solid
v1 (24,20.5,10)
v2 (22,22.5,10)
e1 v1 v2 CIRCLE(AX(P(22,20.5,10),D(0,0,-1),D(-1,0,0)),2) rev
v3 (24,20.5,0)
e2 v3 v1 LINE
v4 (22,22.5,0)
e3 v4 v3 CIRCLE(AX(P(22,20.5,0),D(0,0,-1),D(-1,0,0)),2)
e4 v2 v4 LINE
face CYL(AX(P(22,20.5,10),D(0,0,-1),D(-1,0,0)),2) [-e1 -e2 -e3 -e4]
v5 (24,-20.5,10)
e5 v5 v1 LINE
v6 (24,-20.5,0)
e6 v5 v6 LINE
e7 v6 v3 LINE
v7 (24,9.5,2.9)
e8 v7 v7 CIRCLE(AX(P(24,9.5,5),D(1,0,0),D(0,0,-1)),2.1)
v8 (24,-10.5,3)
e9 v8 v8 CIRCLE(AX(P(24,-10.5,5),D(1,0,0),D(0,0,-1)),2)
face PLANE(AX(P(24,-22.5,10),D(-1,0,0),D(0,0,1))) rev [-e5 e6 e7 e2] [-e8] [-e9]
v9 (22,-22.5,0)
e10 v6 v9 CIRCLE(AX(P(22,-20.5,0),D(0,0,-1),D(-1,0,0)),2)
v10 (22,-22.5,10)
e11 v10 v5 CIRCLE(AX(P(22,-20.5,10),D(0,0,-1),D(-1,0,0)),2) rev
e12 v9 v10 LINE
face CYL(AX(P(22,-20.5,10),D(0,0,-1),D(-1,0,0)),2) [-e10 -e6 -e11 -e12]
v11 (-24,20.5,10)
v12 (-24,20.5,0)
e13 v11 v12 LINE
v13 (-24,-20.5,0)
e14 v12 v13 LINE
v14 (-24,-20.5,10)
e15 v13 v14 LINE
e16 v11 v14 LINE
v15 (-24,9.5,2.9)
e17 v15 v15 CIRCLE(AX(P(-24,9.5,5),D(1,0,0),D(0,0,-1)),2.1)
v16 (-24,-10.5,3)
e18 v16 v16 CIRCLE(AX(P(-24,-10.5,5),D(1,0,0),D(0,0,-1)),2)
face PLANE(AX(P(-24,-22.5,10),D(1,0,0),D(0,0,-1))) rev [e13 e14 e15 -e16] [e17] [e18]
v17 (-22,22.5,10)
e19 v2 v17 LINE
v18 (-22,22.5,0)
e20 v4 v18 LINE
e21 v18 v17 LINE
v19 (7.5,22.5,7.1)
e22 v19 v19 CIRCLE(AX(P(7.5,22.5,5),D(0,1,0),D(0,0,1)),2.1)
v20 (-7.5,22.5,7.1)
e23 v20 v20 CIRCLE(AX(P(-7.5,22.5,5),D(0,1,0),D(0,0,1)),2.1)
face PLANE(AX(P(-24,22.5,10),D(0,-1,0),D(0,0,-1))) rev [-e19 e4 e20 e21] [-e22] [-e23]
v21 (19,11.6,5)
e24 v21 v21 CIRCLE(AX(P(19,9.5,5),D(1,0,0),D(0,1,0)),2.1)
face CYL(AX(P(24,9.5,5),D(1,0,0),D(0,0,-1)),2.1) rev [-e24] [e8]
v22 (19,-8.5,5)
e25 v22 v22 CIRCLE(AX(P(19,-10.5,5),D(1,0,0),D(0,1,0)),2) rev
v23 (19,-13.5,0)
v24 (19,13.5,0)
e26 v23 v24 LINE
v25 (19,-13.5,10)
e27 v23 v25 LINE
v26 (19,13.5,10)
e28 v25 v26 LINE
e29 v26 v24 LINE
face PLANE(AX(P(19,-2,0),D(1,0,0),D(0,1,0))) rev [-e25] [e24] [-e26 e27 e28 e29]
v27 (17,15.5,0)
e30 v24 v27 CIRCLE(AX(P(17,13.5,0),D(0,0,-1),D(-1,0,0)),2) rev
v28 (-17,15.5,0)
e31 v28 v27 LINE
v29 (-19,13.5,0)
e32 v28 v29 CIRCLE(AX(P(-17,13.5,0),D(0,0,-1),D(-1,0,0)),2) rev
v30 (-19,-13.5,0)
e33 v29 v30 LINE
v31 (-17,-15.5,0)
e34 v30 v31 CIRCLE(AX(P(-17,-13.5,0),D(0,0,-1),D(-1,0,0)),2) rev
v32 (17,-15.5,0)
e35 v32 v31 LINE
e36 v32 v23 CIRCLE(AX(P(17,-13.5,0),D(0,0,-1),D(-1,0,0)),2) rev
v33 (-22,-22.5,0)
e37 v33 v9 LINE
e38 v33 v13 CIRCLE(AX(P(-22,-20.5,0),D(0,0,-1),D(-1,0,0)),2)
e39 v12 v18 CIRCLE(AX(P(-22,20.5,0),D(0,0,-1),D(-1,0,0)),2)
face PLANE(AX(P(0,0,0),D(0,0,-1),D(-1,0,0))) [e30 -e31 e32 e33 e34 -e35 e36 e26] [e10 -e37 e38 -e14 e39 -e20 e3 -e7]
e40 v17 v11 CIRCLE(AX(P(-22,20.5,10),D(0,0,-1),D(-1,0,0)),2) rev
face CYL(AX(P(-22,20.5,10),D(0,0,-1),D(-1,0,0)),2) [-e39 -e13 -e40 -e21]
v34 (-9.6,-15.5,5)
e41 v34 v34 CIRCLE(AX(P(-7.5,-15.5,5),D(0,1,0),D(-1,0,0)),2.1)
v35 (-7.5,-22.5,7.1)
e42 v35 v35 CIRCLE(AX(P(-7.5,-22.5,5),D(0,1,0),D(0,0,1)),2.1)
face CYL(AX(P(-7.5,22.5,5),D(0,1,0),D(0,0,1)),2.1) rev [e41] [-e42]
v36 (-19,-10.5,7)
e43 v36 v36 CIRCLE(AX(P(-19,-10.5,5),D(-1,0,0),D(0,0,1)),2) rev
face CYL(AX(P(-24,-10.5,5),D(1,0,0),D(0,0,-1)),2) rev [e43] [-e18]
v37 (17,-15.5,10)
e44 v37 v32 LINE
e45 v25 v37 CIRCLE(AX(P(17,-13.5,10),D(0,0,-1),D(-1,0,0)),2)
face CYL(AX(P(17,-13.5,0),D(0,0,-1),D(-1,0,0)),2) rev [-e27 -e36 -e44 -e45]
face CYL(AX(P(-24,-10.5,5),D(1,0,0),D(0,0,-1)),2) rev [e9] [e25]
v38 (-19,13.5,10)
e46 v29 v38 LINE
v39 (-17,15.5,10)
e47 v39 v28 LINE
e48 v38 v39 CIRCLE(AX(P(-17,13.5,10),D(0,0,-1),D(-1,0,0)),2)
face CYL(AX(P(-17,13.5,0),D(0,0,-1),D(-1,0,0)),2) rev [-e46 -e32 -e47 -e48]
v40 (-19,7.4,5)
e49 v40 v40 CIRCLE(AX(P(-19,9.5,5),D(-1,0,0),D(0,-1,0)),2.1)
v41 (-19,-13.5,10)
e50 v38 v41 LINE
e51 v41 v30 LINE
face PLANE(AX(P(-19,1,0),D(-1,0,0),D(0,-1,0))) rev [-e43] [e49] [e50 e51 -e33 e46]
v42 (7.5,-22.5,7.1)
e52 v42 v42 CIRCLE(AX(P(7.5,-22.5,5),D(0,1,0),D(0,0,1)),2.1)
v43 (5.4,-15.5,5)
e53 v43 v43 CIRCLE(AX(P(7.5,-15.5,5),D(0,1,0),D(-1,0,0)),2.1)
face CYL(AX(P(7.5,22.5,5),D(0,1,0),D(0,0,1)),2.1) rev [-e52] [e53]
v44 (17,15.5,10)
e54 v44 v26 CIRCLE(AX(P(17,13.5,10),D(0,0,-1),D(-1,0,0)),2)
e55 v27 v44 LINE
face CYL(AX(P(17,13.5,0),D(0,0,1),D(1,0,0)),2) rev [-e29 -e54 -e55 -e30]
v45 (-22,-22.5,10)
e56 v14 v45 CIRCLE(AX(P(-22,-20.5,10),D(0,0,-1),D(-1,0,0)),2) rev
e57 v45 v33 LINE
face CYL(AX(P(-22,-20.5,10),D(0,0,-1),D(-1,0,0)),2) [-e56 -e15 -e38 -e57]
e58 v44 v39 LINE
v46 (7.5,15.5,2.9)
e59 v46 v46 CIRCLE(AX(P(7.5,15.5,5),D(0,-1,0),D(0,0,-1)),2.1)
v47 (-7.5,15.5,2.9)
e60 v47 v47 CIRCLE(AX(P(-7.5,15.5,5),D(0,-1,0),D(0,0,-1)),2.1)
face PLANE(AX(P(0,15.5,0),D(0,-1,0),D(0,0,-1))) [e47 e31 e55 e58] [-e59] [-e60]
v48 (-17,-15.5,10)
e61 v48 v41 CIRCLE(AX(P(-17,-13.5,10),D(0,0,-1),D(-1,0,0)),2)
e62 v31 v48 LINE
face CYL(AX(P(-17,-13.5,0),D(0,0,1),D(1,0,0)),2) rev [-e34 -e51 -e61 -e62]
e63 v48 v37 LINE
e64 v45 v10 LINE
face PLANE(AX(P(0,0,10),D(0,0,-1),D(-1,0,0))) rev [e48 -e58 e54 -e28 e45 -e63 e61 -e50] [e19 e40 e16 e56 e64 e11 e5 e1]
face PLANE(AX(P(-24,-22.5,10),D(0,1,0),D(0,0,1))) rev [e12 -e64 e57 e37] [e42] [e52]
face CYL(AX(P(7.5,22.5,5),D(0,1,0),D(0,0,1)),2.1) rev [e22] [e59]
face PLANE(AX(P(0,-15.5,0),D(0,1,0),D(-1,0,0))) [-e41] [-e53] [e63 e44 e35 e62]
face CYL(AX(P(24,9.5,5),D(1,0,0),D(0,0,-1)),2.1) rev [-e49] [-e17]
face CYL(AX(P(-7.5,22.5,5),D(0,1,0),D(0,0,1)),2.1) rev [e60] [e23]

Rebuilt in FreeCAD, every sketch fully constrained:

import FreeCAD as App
import Part
import Sketcher
Q = App.Units.Quantity


def edges_at(feature, points):
    """Names of the edges that pass closest to the given points."""
    edges = feature.Shape.Edges
    near = lambda p: min(range(len(edges)), key=lambda i: edges[i].distToShape(Part.Vertex(*p))[0])
    return sorted({f"Edge{near(p) + 1}" for p in points})

doc = App.newDocument("Part")
body = doc.addObject("PartDesign::Body", "Body")

# Sketch on XY plane
sketch1 = body.newObject("Sketcher::SketchObject", "Sketch")
sketch1.AttachmentSupport = (doc.getObject("XY_Plane"), [""])
sketch1.MapMode = "FlatFace"
sketch1.addGeometry(Part.LineSegment(App.Vector(-24, 22, 0), App.Vector(-24, -22, 0)), False)
sketch1.addGeometry(Part.LineSegment(App.Vector(-24, -22, 0), App.Vector(24, -22, 0)), False)
sketch1.addGeometry(Part.LineSegment(App.Vector(24, -22, 0), App.Vector(24, 22, 0)), False)
sketch1.addGeometry(Part.LineSegment(App.Vector(24, 22, 0), App.Vector(-24, 22, 0)), False)
sketch1.addConstraint(Sketcher.Constraint("Coincident", 0, 2, 1, 1))
sketch1.addConstraint(Sketcher.Constraint("Coincident", 1, 2, 2, 1))
sketch1.addConstraint(Sketcher.Constraint("Coincident", 2, 2, 3, 1))
sketch1.addConstraint(Sketcher.Constraint("Coincident", 3, 2, 0, 1))
sketch1.addConstraint(Sketcher.Constraint("Vertical", 0))
sketch1.addConstraint(Sketcher.Constraint("Horizontal", 1))
sketch1.addConstraint(Sketcher.Constraint("Vertical", 2))
sketch1.addConstraint(Sketcher.Constraint("Horizontal", 3))
sketch1.addConstraint(Sketcher.Constraint("Symmetric", 0, 2, 2, 2, -1, 1))
sketch1.addConstraint(Sketcher.Constraint("DistanceX", 1, 1, 1, 2, Q("48 mm")))
sketch1.addConstraint(Sketcher.Constraint("DistanceY", 0, 2, 0, 1, Q("45 mm")))
pad1 = body.newObject("PartDesign::Pad", "Pad")
pad1.Profile = sketch1
pad1.Length = 10

# Sketch on XZ plane
sketch2 = body.newObject("Sketcher::SketchObject", "Sketch001")
sketch2.AttachmentSupport = (doc.getObject("XZ_Plane"), [""])
sketch2.MapMode = "FlatFace"
sketch2.AttachmentOffset = App.Placement(App.Vector(0, 0, -22.5), App.Rotation())
sketch2.addGeometry(Part.Circle(App.Vector(10, 5, 0), App.Vector(0, 0, 1), 2.5), False)
sketch2.addGeometry(Part.Circle(App.Vector(-10, 5, 0), App.Vector(0, 0, 1), 2.5), False)
sketch2.addConstraint(Sketcher.Constraint("Equal", 0, 1))
sketch2.addConstraint(Sketcher.Constraint("Symmetric", 0, 3, 1, 3, -2))
sketch2.addConstraint(Sketcher.Constraint("Diameter", 0, Q("5 mm")))
sketch2.addConstraint(Sketcher.Constraint("DistanceX", -1, 1, 0, 3, Q("10 mm")))
sketch2.addConstraint(Sketcher.Constraint("DistanceY", -1, 1, 0, 3, Q("5 mm")))
pocket1 = body.newObject("PartDesign::Pocket", "Pocket")
pocket1.Profile = sketch2
pocket1.Type = "ThroughAll"
pocket1.Midplane = True

# Sketch on YZ plane
sketch3 = body.newObject("Sketcher::SketchObject", "Sketch002")
sketch3.AttachmentSupport = (doc.getObject("YZ_Plane"), [""])
sketch3.MapMode = "FlatFace"
sketch3.AttachmentOffset = App.Placement(App.Vector(0, 0, 24), App.Rotation())
sketch3.addGeometry(Part.Circle(App.Vector(-10.5, 5, 0), App.Vector(0, 0, 1), 2), False)
sketch3.addConstraint(Sketcher.Constraint("Diameter", 0, Q("4 mm")))
sketch3.addConstraint(Sketcher.Constraint("DistanceY", -1, 1, 0, 3, Q("5 mm")))
sketch3.addConstraint(Sketcher.Constraint("DistanceX", 0, 3, -1, 1, Q("10.5 mm")))
pocket2 = body.newObject("PartDesign::Pocket", "Pocket001")
pocket2.Profile = sketch3
pocket2.Type = "ThroughAll"

# Sketch on YZ plane
sketch4 = body.newObject("Sketcher::SketchObject", "Sketch003")
sketch4.AttachmentSupport = (doc.getObject("YZ_Plane"), [""])
sketch4.MapMode = "FlatFace"
sketch4.AttachmentOffset = App.Placement(App.Vector(0, 0, 24), App.Rotation())
sketch4.addGeometry(Part.Circle(App.Vector(9.5, 5, 0), App.Vector(0, 0, 1), 1.8), False)
sketch4.addConstraint(Sketcher.Constraint("Diameter", 0, Q("3.5 mm")))
sketch4.addConstraint(Sketcher.Constraint("DistanceY", -1, 1, 0, 3, Q("5 mm")))
sketch4.addConstraint(Sketcher.Constraint("DistanceX", -1, 1, 0, 3, Q("9.5 mm")))
pocket3 = body.newObject("PartDesign::Pocket", "Pocket002")
pocket3.Profile = sketch4
pocket3.Type = "ThroughAll"
pocket3.Midplane = True

# Sketch on XY plane
sketch5 = body.newObject("Sketcher::SketchObject", "Sketch004")
sketch5.AttachmentSupport = (doc.getObject("XY_Plane"), [""])
sketch5.MapMode = "FlatFace"
sketch5.AttachmentOffset = App.Placement(App.Vector(0, 0, 10), App.Rotation())
sketch5.addGeometry(Part.LineSegment(App.Vector(-19, -2, 0), App.Vector(-19, -19, 0)), False)
sketch5.addGeometry(Part.LineSegment(App.Vector(-19, -19, 0), App.Vector(-1, -19, 0)), False)
sketch5.addGeometry(Part.LineSegment(App.Vector(-1, -19, 0), App.Vector(-1, -2, 0)), False)
sketch5.addGeometry(Part.LineSegment(App.Vector(-1, -2, 0), App.Vector(-19, -2, 0)), False)
sketch5.addGeometry(Part.LineSegment(App.Vector(1, -2, 0), App.Vector(1, -19, 0)), False)
sketch5.addGeometry(Part.LineSegment(App.Vector(1, -19, 0), App.Vector(19, -19, 0)), False)
sketch5.addGeometry(Part.LineSegment(App.Vector(19, -19, 0), App.Vector(19, -2, 0)), False)
sketch5.addGeometry(Part.LineSegment(App.Vector(19, -2, 0), App.Vector(1, -2, 0)), False)
sketch5.addGeometry(Part.LineSegment(App.Vector(-19, 18, 0), App.Vector(-19, 1, 0)), False)
sketch5.addGeometry(Part.LineSegment(App.Vector(-19, 1, 0), App.Vector(-1, 1, 0)), False)
sketch5.addGeometry(Part.LineSegment(App.Vector(-1, 1, 0), App.Vector(-1, 18, 0)), False)
sketch5.addGeometry(Part.LineSegment(App.Vector(-1, 18, 0), App.Vector(-19, 18, 0)), False)
sketch5.addGeometry(Part.LineSegment(App.Vector(1, 18, 0), App.Vector(1, 1, 0)), False)
sketch5.addGeometry(Part.LineSegment(App.Vector(1, 1, 0), App.Vector(19, 1, 0)), False)
sketch5.addGeometry(Part.LineSegment(App.Vector(19, 1, 0), App.Vector(19, 18, 0)), False)
sketch5.addGeometry(Part.LineSegment(App.Vector(19, 18, 0), App.Vector(1, 18, 0)), False)
sketch5.addConstraint(Sketcher.Constraint("Coincident", 0, 2, 1, 1))
sketch5.addConstraint(Sketcher.Constraint("Coincident", 1, 2, 2, 1))
sketch5.addConstraint(Sketcher.Constraint("Coincident", 2, 2, 3, 1))
sketch5.addConstraint(Sketcher.Constraint("Coincident", 3, 2, 0, 1))
sketch5.addConstraint(Sketcher.Constraint("Coincident", 4, 2, 5, 1))
sketch5.addConstraint(Sketcher.Constraint("Coincident", 5, 2, 6, 1))
sketch5.addConstraint(Sketcher.Constraint("Coincident", 6, 2, 7, 1))
sketch5.addConstraint(Sketcher.Constraint("Coincident", 7, 2, 4, 1))
sketch5.addConstraint(Sketcher.Constraint("Coincident", 8, 2, 9, 1))
sketch5.addConstraint(Sketcher.Constraint("Coincident", 9, 2, 10, 1))
sketch5.addConstraint(Sketcher.Constraint("Coincident", 10, 2, 11, 1))
sketch5.addConstraint(Sketcher.Constraint("Coincident", 11, 2, 8, 1))
sketch5.addConstraint(Sketcher.Constraint("Coincident", 12, 2, 13, 1))
sketch5.addConstraint(Sketcher.Constraint("Coincident", 13, 2, 14, 1))
sketch5.addConstraint(Sketcher.Constraint("Coincident", 14, 2, 15, 1))
sketch5.addConstraint(Sketcher.Constraint("Coincident", 15, 2, 12, 1))
sketch5.addConstraint(Sketcher.Constraint("Vertical", 0))
sketch5.addConstraint(Sketcher.Constraint("Horizontal", 1))
sketch5.addConstraint(Sketcher.Constraint("Vertical", 2))
sketch5.addConstraint(Sketcher.Constraint("Horizontal", 3))
sketch5.addConstraint(Sketcher.Constraint("Vertical", 4))
sketch5.addConstraint(Sketcher.Constraint("Horizontal", 5))
sketch5.addConstraint(Sketcher.Constraint("Vertical", 6))
sketch5.addConstraint(Sketcher.Constraint("Horizontal", 7))
sketch5.addConstraint(Sketcher.Constraint("Vertical", 8))
sketch5.addConstraint(Sketcher.Constraint("Horizontal", 9))
sketch5.addConstraint(Sketcher.Constraint("Vertical", 10))
sketch5.addConstraint(Sketcher.Constraint("Horizontal", 11))
sketch5.addConstraint(Sketcher.Constraint("Vertical", 12))
sketch5.addConstraint(Sketcher.Constraint("Horizontal", 13))
sketch5.addConstraint(Sketcher.Constraint("Vertical", 14))
sketch5.addConstraint(Sketcher.Constraint("Horizontal", 15))
sketch5.addConstraint(Sketcher.Constraint("Symmetric", 1, 2, 4, 2, -2))
sketch5.addConstraint(Sketcher.Constraint("Symmetric", 3, 2, 6, 2, -2))
sketch5.addConstraint(Sketcher.Constraint("Symmetric", 9, 2, 12, 2, -2))
sketch5.addConstraint(Sketcher.Constraint("Symmetric", 11, 2, 14, 2, -2))
sketch5.addConstraint(Sketcher.Constraint("Vertical", 3, 2, 8, 2))
sketch5.addConstraint(Sketcher.Constraint("Vertical", 2, 2, 9, 2))
sketch5.addConstraint(Sketcher.Constraint("Equal", 6, 8))
sketch5.addConstraint(Sketcher.Constraint("DistanceY", 0, 2, 0, 1, Q("17 mm")))
sketch5.addConstraint(Sketcher.Constraint("DistanceX", 1, 1, 1, 2, Q("17.7 mm")))
sketch5.addConstraint(Sketcher.Constraint("DistanceX", 0, 2, -1, 1, Q("19 mm")))
sketch5.addConstraint(Sketcher.Constraint("DistanceY", 0, 2, -1, 1, Q("19 mm")))
sketch5.addConstraint(Sketcher.Constraint("DistanceY", -1, 1, 8, 2, Q("1 mm")))
pocket4 = body.newObject("PartDesign::Pocket", "Pocket003")
pocket4.Profile = sketch5
pocket4.Type = "ThroughAll"

# Sketch on XY plane
sketch6 = body.newObject("Sketcher::SketchObject", "Sketch005")
sketch6.AttachmentSupport = (doc.getObject("XY_Plane"), [""])
sketch6.MapMode = "FlatFace"
sketch6.AttachmentOffset = App.Placement(App.Vector(0, 0, 10), App.Rotation())
sketch6.addGeometry(Part.LineSegment(App.Vector(-19, 18, 0), App.Vector(-19, 16.5, 0)), False)
sketch6.addGeometry(Part.LineSegment(App.Vector(-19, 16.5, 0), App.Vector(-1.3, 16.5, 0)), False)
sketch6.addGeometry(Part.LineSegment(App.Vector(-1.3, 16.5, 0), App.Vector(-1.3, 18, 0)), False)
sketch6.addGeometry(Part.LineSegment(App.Vector(-1.3, 18, 0), App.Vector(-19, 18, 0)), False)
sketch6.addGeometry(Part.LineSegment(App.Vector(1.3, 18, 0), App.Vector(1.3, 16.5, 0)), False)
sketch6.addGeometry(Part.LineSegment(App.Vector(1.3, 16.5, 0), App.Vector(19, 16.5, 0)), False)
sketch6.addGeometry(Part.LineSegment(App.Vector(19, 16.5, 0), App.Vector(19, 18, 0)), False)
sketch6.addGeometry(Part.LineSegment(App.Vector(19, 18, 0), App.Vector(1.3, 18, 0)), False)
sketch6.addGeometry(Part.LineSegment(App.Vector(-19, 1, 0), App.Vector(-19, -1.5, 0)), False)
sketch6.addGeometry(Part.LineSegment(App.Vector(-19, -1.5, 0), App.Vector(-1.3, -1.5, 0)), False)
sketch6.addGeometry(Part.LineSegment(App.Vector(-1.3, -1.5, 0), App.Vector(-1.3, 1, 0)), False)
sketch6.addGeometry(Part.LineSegment(App.Vector(-1.3, 1, 0), App.Vector(-19, 1, 0)), False)
sketch6.addGeometry(Part.LineSegment(App.Vector(1.3, 1, 0), App.Vector(1.3, -1.5, 0)), False)
sketch6.addGeometry(Part.LineSegment(App.Vector(1.3, -1.5, 0), App.Vector(19, -1.5, 0)), False)
sketch6.addGeometry(Part.LineSegment(App.Vector(19, -1.5, 0), App.Vector(19, 1, 0)), False)
sketch6.addGeometry(Part.LineSegment(App.Vector(19, 1, 0), App.Vector(1.3, 1, 0)), False)
sketch6.addConstraint(Sketcher.Constraint("Coincident", 0, 2, 1, 1))
sketch6.addConstraint(Sketcher.Constraint("Coincident", 1, 2, 2, 1))
sketch6.addConstraint(Sketcher.Constraint("Coincident", 2, 2, 3, 1))
sketch6.addConstraint(Sketcher.Constraint("Coincident", 3, 2, 0, 1))
sketch6.addConstraint(Sketcher.Constraint("Coincident", 4, 2, 5, 1))
sketch6.addConstraint(Sketcher.Constraint("Coincident", 5, 2, 6, 1))
sketch6.addConstraint(Sketcher.Constraint("Coincident", 6, 2, 7, 1))
sketch6.addConstraint(Sketcher.Constraint("Coincident", 7, 2, 4, 1))
sketch6.addConstraint(Sketcher.Constraint("Coincident", 8, 2, 9, 1))
sketch6.addConstraint(Sketcher.Constraint("Coincident", 9, 2, 10, 1))
sketch6.addConstraint(Sketcher.Constraint("Coincident", 10, 2, 11, 1))
sketch6.addConstraint(Sketcher.Constraint("Coincident", 11, 2, 8, 1))
sketch6.addConstraint(Sketcher.Constraint("Coincident", 12, 2, 13, 1))
sketch6.addConstraint(Sketcher.Constraint("Coincident", 13, 2, 14, 1))
sketch6.addConstraint(Sketcher.Constraint("Coincident", 14, 2, 15, 1))
sketch6.addConstraint(Sketcher.Constraint("Coincident", 15, 2, 12, 1))
sketch6.addConstraint(Sketcher.Constraint("Vertical", 0))
sketch6.addConstraint(Sketcher.Constraint("Horizontal", 1))
sketch6.addConstraint(Sketcher.Constraint("Vertical", 2))
sketch6.addConstraint(Sketcher.Constraint("Horizontal", 3))
sketch6.addConstraint(Sketcher.Constraint("Vertical", 4))
sketch6.addConstraint(Sketcher.Constraint("Horizontal", 5))
sketch6.addConstraint(Sketcher.Constraint("Vertical", 6))
sketch6.addConstraint(Sketcher.Constraint("Horizontal", 7))
sketch6.addConstraint(Sketcher.Constraint("Vertical", 8))
sketch6.addConstraint(Sketcher.Constraint("Horizontal", 9))
sketch6.addConstraint(Sketcher.Constraint("Vertical", 10))
sketch6.addConstraint(Sketcher.Constraint("Horizontal", 11))
sketch6.addConstraint(Sketcher.Constraint("Vertical", 12))
sketch6.addConstraint(Sketcher.Constraint("Horizontal", 13))
sketch6.addConstraint(Sketcher.Constraint("Vertical", 14))
sketch6.addConstraint(Sketcher.Constraint("Horizontal", 15))
sketch6.addConstraint(Sketcher.Constraint("Symmetric", 1, 2, 4, 2, -2))
sketch6.addConstraint(Sketcher.Constraint("Symmetric", 3, 2, 6, 2, -2))
sketch6.addConstraint(Sketcher.Constraint("Symmetric", 9, 2, 12, 2, -2))
sketch6.addConstraint(Sketcher.Constraint("Symmetric", 11, 2, 14, 2, -2))
sketch6.addConstraint(Sketcher.Constraint("Vertical", 3, 2, 8, 2))
sketch6.addConstraint(Sketcher.Constraint("Vertical", 2, 2, 9, 2))
sketch6.addConstraint(Sketcher.Constraint("DistanceX", 1, 1, 1, 2, Q("17.7 mm")))
sketch6.addConstraint(Sketcher.Constraint("DistanceY", 0, 2, 0, 1, Q("1.5 mm")))
sketch6.addConstraint(Sketcher.Constraint("DistanceY", 8, 2, 8, 1, Q("2.5 mm")))
sketch6.addConstraint(Sketcher.Constraint("DistanceX", 0, 2, -1, 1, Q("19 mm")))
sketch6.addConstraint(Sketcher.Constraint("DistanceY", -1, 1, 2, 2, Q("18 mm")))
sketch6.addConstraint(Sketcher.Constraint("DistanceY", -1, 1, 10, 2, Q("1 mm")))
pocket5 = body.newObject("PartDesign::Pocket", "Pocket004")
pocket5.Profile = sketch6
pocket5.Type = "ThroughAll"

# Sketch on XZ plane
sketch7 = body.newObject("Sketcher::SketchObject", "Sketch006")
sketch7.AttachmentSupport = (doc.getObject("XZ_Plane"), [""])
sketch7.MapMode = "FlatFace"
sketch7.AttachmentOffset = App.Placement(App.Vector(0, 0, -22.5), App.Rotation())
sketch7.addGeometry(Part.Circle(App.Vector(10, 5, 0), App.Vector(0, 0, 1), 2.5), False)
sketch7.addGeometry(Part.Circle(App.Vector(-10, 5, 0), App.Vector(0, 0, 1), 2.5), False)
sketch7.addConstraint(Sketcher.Constraint("Equal", 0, 1))
sketch7.addConstraint(Sketcher.Constraint("Symmetric", 0, 3, 1, 3, -2))
sketch7.addConstraint(Sketcher.Constraint("Diameter", 0, Q("5 mm")))
sketch7.addConstraint(Sketcher.Constraint("DistanceX", -1, 1, 0, 3, Q("10 mm")))
sketch7.addConstraint(Sketcher.Constraint("DistanceY", -1, 1, 0, 3, Q("5 mm")))
pad2 = body.newObject("PartDesign::Pad", "Pad001")
pad2.Profile = sketch7
pad2.Length = 45

# Sketch on XZ plane
sketch8 = body.newObject("Sketcher::SketchObject", "Sketch007")
sketch8.AttachmentSupport = (doc.getObject("XZ_Plane"), [""])
sketch8.MapMode = "FlatFace"
sketch8.AttachmentOffset = App.Placement(App.Vector(0, 0, -22.5), App.Rotation())
sketch8.addGeometry(Part.Circle(App.Vector(-7.5, 5, 0), App.Vector(0, 0, 1), 1.8), False)
sketch8.addGeometry(Part.Circle(App.Vector(7.5, 5, 0), App.Vector(0, 0, 1), 1.8), False)
sketch8.addConstraint(Sketcher.Constraint("Equal", 0, 1))
sketch8.addConstraint(Sketcher.Constraint("Symmetric", 0, 3, 1, 3, -2))
sketch8.addConstraint(Sketcher.Constraint("Diameter", 0, Q("3.5 mm")))
sketch8.addConstraint(Sketcher.Constraint("DistanceY", -1, 1, 0, 3, Q("5 mm")))
sketch8.addConstraint(Sketcher.Constraint("DistanceX", 0, 3, 1, 3, Q("15 mm")))
pocket6 = body.newObject("PartDesign::Pocket", "Pocket005")
pocket6.Profile = sketch8
pocket6.Length = 45
pocket6.Reversed = True

# Sketch on XY plane
sketch9 = body.newObject("Sketcher::SketchObject", "Sketch008")
sketch9.AttachmentSupport = (doc.getObject("XY_Plane"), [""])
sketch9.MapMode = "FlatFace"
sketch9.AttachmentOffset = App.Placement(App.Vector(0, 0, 10), App.Rotation())
sketch9.addGeometry(Part.LineSegment(App.Vector(-19, 18, 0), App.Vector(-19, -19, 0)), False)
sketch9.addGeometry(Part.LineSegment(App.Vector(-19, -19, 0), App.Vector(19, -19, 0)), False)
sketch9.addGeometry(Part.LineSegment(App.Vector(19, -19, 0), App.Vector(19, 18, 0)), False)
sketch9.addGeometry(Part.LineSegment(App.Vector(19, 18, 0), App.Vector(-19, 18, 0)), False)
sketch9.addConstraint(Sketcher.Constraint("Coincident", 0, 2, 1, 1))
sketch9.addConstraint(Sketcher.Constraint("Coincident", 1, 2, 2, 1))
sketch9.addConstraint(Sketcher.Constraint("Coincident", 2, 2, 3, 1))
sketch9.addConstraint(Sketcher.Constraint("Coincident", 3, 2, 0, 1))
sketch9.addConstraint(Sketcher.Constraint("Vertical", 0))
sketch9.addConstraint(Sketcher.Constraint("Horizontal", 1))
sketch9.addConstraint(Sketcher.Constraint("Vertical", 2))
sketch9.addConstraint(Sketcher.Constraint("Horizontal", 3))
sketch9.addConstraint(Sketcher.Constraint("DistanceX", 1, 1, 1, 2, Q("38 mm")))
sketch9.addConstraint(Sketcher.Constraint("DistanceY", 0, 2, 0, 1, Q("37 mm")))
sketch9.addConstraint(Sketcher.Constraint("DistanceX", 0, 2, -1, 1, Q("19 mm")))
sketch9.addConstraint(Sketcher.Constraint("DistanceY", 0, 2, -1, 1, Q("19 mm")))
pocket7 = body.newObject("PartDesign::Pocket", "Pocket006")
pocket7.Profile = sketch9
pocket7.Type = "ThroughAll"

# Sketch on XZ plane
sketch10 = body.newObject("Sketcher::SketchObject", "Sketch009")
sketch10.AttachmentSupport = (doc.getObject("XZ_Plane"), [""])
sketch10.MapMode = "FlatFace"
sketch10.AttachmentOffset = App.Placement(App.Vector(0, 0, 19), App.Rotation())
sketch10.addGeometry(Part.LineSegment(App.Vector(-19, 0, 0), App.Vector(-19, 10, 0)), False)
sketch10.addGeometry(Part.LineSegment(App.Vector(-19, 10, 0), App.Vector(19, 10, 0)), False)
sketch10.addGeometry(Part.LineSegment(App.Vector(19, 10, 0), App.Vector(19, 0, 0)), False)
sketch10.addGeometry(Part.LineSegment(App.Vector(19, 0, 0), App.Vector(-19, 0, 0)), False)
sketch10.addGeometry(Part.Circle(App.Vector(-7.5, 5, 0), App.Vector(0, 0, 1), 1.8), False)
sketch10.addGeometry(Part.Circle(App.Vector(7.5, 5, 0), App.Vector(0, 0, 1), 1.8), False)
sketch10.addConstraint(Sketcher.Constraint("Coincident", 0, 2, 1, 1))
sketch10.addConstraint(Sketcher.Constraint("Coincident", 1, 2, 2, 1))
sketch10.addConstraint(Sketcher.Constraint("Coincident", 2, 2, 3, 1))
sketch10.addConstraint(Sketcher.Constraint("Coincident", 3, 2, 0, 1))
sketch10.addConstraint(Sketcher.Constraint("Vertical", 0))
sketch10.addConstraint(Sketcher.Constraint("Horizontal", 1))
sketch10.addConstraint(Sketcher.Constraint("Vertical", 2))
sketch10.addConstraint(Sketcher.Constraint("Horizontal", 3))
sketch10.addConstraint(Sketcher.Constraint("Equal", 4, 5))
sketch10.addConstraint(Sketcher.Constraint("Symmetric", 2, 2, 3, 2, -1, 1))
sketch10.addConstraint(Sketcher.Constraint("Symmetric", 4, 3, 5, 3, -2))
sketch10.addConstraint(Sketcher.Constraint("Diameter", 4, Q("3.5 mm")))
sketch10.addConstraint(Sketcher.Constraint("DistanceX", 1, 1, 1, 2, Q("38 mm")))
sketch10.addConstraint(Sketcher.Constraint("DistanceY", 0, 1, 0, 2, Q("10 mm")))
sketch10.addConstraint(Sketcher.Constraint("DistanceY", -1, 1, 4, 3, Q("5 mm")))
sketch10.addConstraint(Sketcher.Constraint("DistanceX", 4, 3, 5, 3, Q("15 mm")))
pad3 = body.newObject("PartDesign::Pad", "Pad002")
pad3.Profile = sketch10
pad3.Length = 3.5
pad3.Reversed = True

# Sketch on XZ plane
sketch11 = body.newObject("Sketcher::SketchObject", "Sketch010")
sketch11.AttachmentSupport = (doc.getObject("XZ_Plane"), [""])
sketch11.MapMode = "FlatFace"
sketch11.AttachmentOffset = App.Placement(App.Vector(0, 0, -18), App.Rotation())
sketch11.addGeometry(Part.LineSegment(App.Vector(-19, 10, 0), App.Vector(-19, 0, 0)), False)
sketch11.addGeometry(Part.LineSegment(App.Vector(-19, 0, 0), App.Vector(19, 0, 0)), False)
sketch11.addGeometry(Part.LineSegment(App.Vector(19, 0, 0), App.Vector(19, 10, 0)), False)
sketch11.addGeometry(Part.LineSegment(App.Vector(19, 10, 0), App.Vector(-19, 10, 0)), False)
sketch11.addGeometry(Part.Circle(App.Vector(-7.5, 5, 0), App.Vector(0, 0, 1), 1.8), False)
sketch11.addGeometry(Part.Circle(App.Vector(7.5, 5, 0), App.Vector(0, 0, 1), 1.8), False)
sketch11.addConstraint(Sketcher.Constraint("Coincident", 0, 2, 1, 1))
sketch11.addConstraint(Sketcher.Constraint("Coincident", 1, 2, 2, 1))
sketch11.addConstraint(Sketcher.Constraint("Coincident", 2, 2, 3, 1))
sketch11.addConstraint(Sketcher.Constraint("Coincident", 3, 2, 0, 1))
sketch11.addConstraint(Sketcher.Constraint("Vertical", 0))
sketch11.addConstraint(Sketcher.Constraint("Horizontal", 1))
sketch11.addConstraint(Sketcher.Constraint("Vertical", 2))
sketch11.addConstraint(Sketcher.Constraint("Horizontal", 3))
sketch11.addConstraint(Sketcher.Constraint("Equal", 4, 5))
sketch11.addConstraint(Sketcher.Constraint("Symmetric", 0, 2, 1, 2, -1, 1))
sketch11.addConstraint(Sketcher.Constraint("Symmetric", 4, 3, 5, 3, -2))
sketch11.addConstraint(Sketcher.Constraint("Diameter", 4, Q("3.5 mm")))
sketch11.addConstraint(Sketcher.Constraint("DistanceX", 1, 1, 1, 2, Q("38 mm")))
sketch11.addConstraint(Sketcher.Constraint("DistanceY", 0, 2, 0, 1, Q("10 mm")))
sketch11.addConstraint(Sketcher.Constraint("DistanceY", -1, 1, 4, 3, Q("5 mm")))
sketch11.addConstraint(Sketcher.Constraint("DistanceX", 4, 3, 5, 3, Q("15 mm")))
pad4 = body.newObject("PartDesign::Pad", "Pad003")
pad4.Profile = sketch11
pad4.Length = 2.5
doc.recompute()

fillet = body.newObject("PartDesign::Fillet", "Fillet")
fillet.Base = (pad4, edges_at(pad4, [
    (-19, -15.5, 5),
    (19, -15.5, 5),
    (19, 15.5, 5),
    (-19, 15.5, 5),
]))
fillet.Radius = 2

# Sketch on XZ plane
sketch12 = body.newObject("Sketcher::SketchObject", "Sketch011")
sketch12.AttachmentSupport = (doc.getObject("XZ_Plane"), [""])
sketch12.MapMode = "FlatFace"
sketch12.AttachmentOffset = App.Placement(App.Vector(0, 0, -22.5), App.Rotation())
sketch12.addGeometry(Part.Circle(App.Vector(-7.5, 5, 0), App.Vector(0, 0, 1), 2.1), False)
sketch12.addGeometry(Part.Circle(App.Vector(7.5, 5, 0), App.Vector(0, 0, 1), 2.1), False)
sketch12.addConstraint(Sketcher.Constraint("Equal", 0, 1))
sketch12.addConstraint(Sketcher.Constraint("Symmetric", 0, 3, 1, 3, -2))
sketch12.addConstraint(Sketcher.Constraint("Diameter", 0, Q("4.2 mm")))
sketch12.addConstraint(Sketcher.Constraint("DistanceY", -1, 1, 0, 3, Q("5 mm")))
sketch12.addConstraint(Sketcher.Constraint("DistanceX", 0, 3, 1, 3, Q("15 mm")))
doc.recompute()
hole = body.newObject("PartDesign::Hole", "Hole")
hole.Profile = sketch12
hole.ThreadType = "None"
hole.Diameter = 4.2
hole.DepthType = "Dimension"
hole.Depth = 45
hole.DrillPoint = "Flat"
hole.Reversed = True

# Sketch on YZ plane
sketch13 = body.newObject("Sketcher::SketchObject", "Sketch012")
sketch13.AttachmentSupport = (doc.getObject("YZ_Plane"), [""])
sketch13.MapMode = "FlatFace"
sketch13.AttachmentOffset = App.Placement(App.Vector(0, 0, 24), App.Rotation())
sketch13.addGeometry(Part.Circle(App.Vector(9.5, 5, 0), App.Vector(0, 0, 1), 2.1), False)
sketch13.addConstraint(Sketcher.Constraint("Diameter", 0, Q("4.2 mm")))
sketch13.addConstraint(Sketcher.Constraint("DistanceY", -1, 1, 0, 3, Q("5 mm")))
sketch13.addConstraint(Sketcher.Constraint("DistanceX", -1, 1, 0, 3, Q("9.5 mm")))
doc.recompute()
hole2 = body.newObject("PartDesign::Hole", "Hole001")
hole2.Profile = sketch13
hole2.ThreadType = "None"
hole2.Diameter = 4.2
hole2.DepthType = "Dimension"
hole2.Depth = 48
hole2.DrillPoint = "Flat"
doc.recompute()

fillet2 = body.newObject("PartDesign::Fillet", "Fillet001")
fillet2.Base = (hole2, edges_at(hole2, [
    (24, -22.5, 5),
    (-24, -22.5, 5),
    (-24, 22.5, 5),
    (24, 22.5, 5),
]))
fillet2.Radius = 2

doc.recompute()
